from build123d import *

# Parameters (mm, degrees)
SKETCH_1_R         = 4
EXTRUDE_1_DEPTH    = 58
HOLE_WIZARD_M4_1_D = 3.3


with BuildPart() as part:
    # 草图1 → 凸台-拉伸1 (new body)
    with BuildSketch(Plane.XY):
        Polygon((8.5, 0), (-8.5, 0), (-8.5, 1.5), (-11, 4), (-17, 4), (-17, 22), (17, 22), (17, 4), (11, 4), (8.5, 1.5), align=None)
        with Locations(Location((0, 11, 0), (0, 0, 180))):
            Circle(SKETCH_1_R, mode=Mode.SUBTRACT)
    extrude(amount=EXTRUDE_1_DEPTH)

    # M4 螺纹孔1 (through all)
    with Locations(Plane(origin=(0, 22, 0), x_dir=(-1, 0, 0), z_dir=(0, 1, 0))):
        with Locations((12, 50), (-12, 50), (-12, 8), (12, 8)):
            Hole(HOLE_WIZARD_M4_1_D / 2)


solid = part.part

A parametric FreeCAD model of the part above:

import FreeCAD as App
import Part
import Sketcher

V = App.Vector

doc = App.newDocument("Part")
params = doc.addObject("Spreadsheet::Sheet", "Params")
for row, (alias, value) in enumerate([
    ("sketch1_diameter", "8 mm"),
    ("sketch1_width", "17 mm"),
    ("sketch1_width2", "6 mm"),
    ("sketch1_width3", "34 mm"),
    ("sketch1_height", "18 mm"),
    ("pad1_length", "58 mm"),
    ("sketch2_diameter", "3.3 mm"),
    ("hole_diameter", "3.3 mm"),
], start=1):
    params.set(f"A{row}", alias)
    params.set(f"B{row}", "=" + value)
    params.setAlias(f"B{row}", alias)

body = doc.addObject("PartDesign::Body", "Body")

# Sketch on XY plane
sketch1 = body.newObject("Sketcher::SketchObject", "Sketch")
sketch1.AttachmentSupport = (doc.getObject("XY_Plane"), [""])
sketch1.MapMode = "FlatFace"
sketch1.addGeometry(Part.LineSegment(V(-8.5, 0, 0), V(8.5, 0, 0)), False)
sketch1.addGeometry(Part.LineSegment(V(8.5, 0, 0), V(8.5, 1.5, 0)), False)
sketch1.addGeometry(Part.LineSegment(V(8.5, 1.5, 0), V(11, 4, 0)), False)
sketch1.addGeometry(Part.LineSegment(V(11, 4, 0), V(17, 4, 0)), False)
sketch1.addGeometry(Part.LineSegment(V(17, 4, 0), V(17, 22, 0)), False)
sketch1.addGeometry(Part.LineSegment(V(17, 22, 0), V(-17, 22, 0)), False)
sketch1.addGeometry(Part.LineSegment(V(-17, 22, 0), V(-17, 4, 0)), False)
sketch1.addGeometry(Part.LineSegment(V(-17, 4, 0), V(-11, 4, 0)), False)
sketch1.addGeometry(Part.LineSegment(V(-11, 4, 0), V(-8.5, 1.5, 0)), False)
sketch1.addGeometry(Part.LineSegment(V(-8.5, 1.5, 0), V(-8.5, 0, 0)), False)
sketch1.addGeometry(Part.Circle(V(0, 11, 0), V(0, 0, 1), 4), False)
sketch1.addConstraint(Sketcher.Constraint("Coincident", 0, 2, 1, 1))
sketch1.addConstraint(Sketcher.Constraint("Coincident", 1, 2, 2, 1))
sketch1.addConstraint(Sketcher.Constraint("Coincident", 2, 2, 3, 1))
sketch1.addConstraint(Sketcher.Constraint("Coincident", 3, 2, 4, 1))
sketch1.addConstraint(Sketcher.Constraint("Coincident", 4, 2, 5, 1))
sketch1.addConstraint(Sketcher.Constraint("Coincident", 5, 2, 6, 1))
sketch1.addConstraint(Sketcher.Constraint("Coincident", 6, 2, 7, 1))
sketch1.addConstraint(Sketcher.Constraint("Coincident", 7, 2, 8, 1))
sketch1.addConstraint(Sketcher.Constraint("Coincident", 8, 2, 9, 1))
sketch1.addConstraint(Sketcher.Constraint("Coincident", 9, 2, 0, 1))
sketch1.addConstraint(Sketcher.Constraint("Horizontal", 0))
sketch1.addConstraint(Sketcher.Constraint("Vertical", 1))
sketch1.addConstraint(Sketcher.Constraint("Horizontal", 3))
sketch1.addConstraint(Sketcher.Constraint("Vertical", 4))
sketch1.addConstraint(Sketcher.Constraint("Horizontal", 5))
sketch1.addConstraint(Sketcher.Constraint("Vertical", 6))
sketch1.addConstraint(Sketcher.Constraint("Horizontal", 7))
sketch1.addConstraint(Sketcher.Constraint("Vertical", 9))
sketch1.addConstraint(Sketcher.Constraint("Symmetric", 0, 2, 9, 2, -1, 1))
sketch1.addConstraint(Sketcher.Constraint("Symmetric", 3, 2, 6, 2, -2))
sketch1.addConstraint(Sketcher.Constraint("PointOnObject", 10, 3, -2))
sketch1.addConstraint(Sketcher.Constraint("Perpendicular", 2, 8))
sketch1.addConstraint(Sketcher.Constraint("Horizontal", 1, 2, 8, 2))
sketch1.addConstraint(Sketcher.Constraint("Equal", 3, 7))
sketch1.addConstraint(Sketcher.Constraint("Diameter", 10, 8.0))
sketch1.addConstraint(Sketcher.Constraint("DistanceX", 0, 1, 0, 2, 17.0))
sketch1.addConstraint(Sketcher.Constraint("DistanceX", 3, 1, 3, 2, 6.0))
sketch1.addConstraint(Sketcher.Constraint("DistanceX", 5, 2, 5, 1, 34.0))
sketch1.addConstraint(Sketcher.Constraint("DistanceY", 4, 1, 4, 2, 18.0))
sketch1.addConstraint(Sketcher.Constraint("DistanceY", 1, 1, 1, 2, 1.5))
sketch1.addConstraint(Sketcher.Constraint("DistanceY", -1, 1, 10, 3, 11.0))
sketch1.setExpression("Constraints[24]", "Params.sketch1_diameter")
sketch1.setExpression("Constraints[25]", "Params.sketch1_width")
sketch1.setExpression("Constraints[26]", "Params.sketch1_width2")
sketch1.setExpression("Constraints[27]", "Params.sketch1_width3")
sketch1.setExpression("Constraints[28]", "Params.sketch1_height")
pad1 = body.newObject("PartDesign::Pad", "Pad")
pad1.Profile = sketch1
pad1.setExpression("Length", "Params.pad1_length")

# Sketch on XZ plane
sketch2 = body.newObject("Sketcher::SketchObject", "Sketch001")
sketch2.AttachmentSupport = (doc.getObject("XZ_Plane"), [""])
sketch2.MapMode = "FlatFace"
sketch2.AttachmentOffset = App.Placement(V(0, 0, -22), App.Rotation())
sketch2.addGeometry(Part.Circle(V(-12, 50, 0), V(0, 0, 1), 1.6), False)
sketch2.addGeometry(Part.Circle(V(12, 50, 0), V(0, 0, 1), 1.6), False)
sketch2.addGeometry(Part.Circle(V(12, 8, 0), V(0, 0, 1), 1.6), False)
sketch2.addGeometry(Part.Circle(V(-12, 8, 0), V(0, 0, 1), 1.6), False)
sketch2.addConstraint(Sketcher.Constraint("Equal", 0, 1))
sketch2.addConstraint(Sketcher.Constraint("Equal", 1, 2))
sketch2.addConstraint(Sketcher.Constraint("Equal", 2, 3))
sketch2.addConstraint(Sketcher.Constraint("Symmetric", 0, 3, 1, 3, -2))
sketch2.addConstraint(Sketcher.Constraint("Symmetric", 2, 3, 3, 3, -2))
sketch2.addConstraint(Sketcher.Constraint("Vertical", 1, 3, 2, 3))
sketch2.addConstraint(Sketcher.Constraint("Diameter", 0, 3.3))
sketch2.addConstraint(Sketcher.Constraint("DistanceX", 0, 3, -1, 1, 12.0))
sketch2.addConstraint(Sketcher.Constraint("DistanceY", -1, 1, 0, 3, 50.0))
sketch2.addConstraint(Sketcher.Constraint("DistanceY", -1, 1, 2, 3, 8.0))
sketch2.setExpression("Constraints[6]", "Params.sketch2_diameter")
doc.recompute()
hole = body.newObject("PartDesign::Hole", "Hole")
hole.Profile = sketch2
hole.ThreadType = "None"
hole.setExpression("Diameter", "Params.hole_diameter")
hole.DepthType = "ThroughAll"
hole.Reversed = True

doc.recompute()
